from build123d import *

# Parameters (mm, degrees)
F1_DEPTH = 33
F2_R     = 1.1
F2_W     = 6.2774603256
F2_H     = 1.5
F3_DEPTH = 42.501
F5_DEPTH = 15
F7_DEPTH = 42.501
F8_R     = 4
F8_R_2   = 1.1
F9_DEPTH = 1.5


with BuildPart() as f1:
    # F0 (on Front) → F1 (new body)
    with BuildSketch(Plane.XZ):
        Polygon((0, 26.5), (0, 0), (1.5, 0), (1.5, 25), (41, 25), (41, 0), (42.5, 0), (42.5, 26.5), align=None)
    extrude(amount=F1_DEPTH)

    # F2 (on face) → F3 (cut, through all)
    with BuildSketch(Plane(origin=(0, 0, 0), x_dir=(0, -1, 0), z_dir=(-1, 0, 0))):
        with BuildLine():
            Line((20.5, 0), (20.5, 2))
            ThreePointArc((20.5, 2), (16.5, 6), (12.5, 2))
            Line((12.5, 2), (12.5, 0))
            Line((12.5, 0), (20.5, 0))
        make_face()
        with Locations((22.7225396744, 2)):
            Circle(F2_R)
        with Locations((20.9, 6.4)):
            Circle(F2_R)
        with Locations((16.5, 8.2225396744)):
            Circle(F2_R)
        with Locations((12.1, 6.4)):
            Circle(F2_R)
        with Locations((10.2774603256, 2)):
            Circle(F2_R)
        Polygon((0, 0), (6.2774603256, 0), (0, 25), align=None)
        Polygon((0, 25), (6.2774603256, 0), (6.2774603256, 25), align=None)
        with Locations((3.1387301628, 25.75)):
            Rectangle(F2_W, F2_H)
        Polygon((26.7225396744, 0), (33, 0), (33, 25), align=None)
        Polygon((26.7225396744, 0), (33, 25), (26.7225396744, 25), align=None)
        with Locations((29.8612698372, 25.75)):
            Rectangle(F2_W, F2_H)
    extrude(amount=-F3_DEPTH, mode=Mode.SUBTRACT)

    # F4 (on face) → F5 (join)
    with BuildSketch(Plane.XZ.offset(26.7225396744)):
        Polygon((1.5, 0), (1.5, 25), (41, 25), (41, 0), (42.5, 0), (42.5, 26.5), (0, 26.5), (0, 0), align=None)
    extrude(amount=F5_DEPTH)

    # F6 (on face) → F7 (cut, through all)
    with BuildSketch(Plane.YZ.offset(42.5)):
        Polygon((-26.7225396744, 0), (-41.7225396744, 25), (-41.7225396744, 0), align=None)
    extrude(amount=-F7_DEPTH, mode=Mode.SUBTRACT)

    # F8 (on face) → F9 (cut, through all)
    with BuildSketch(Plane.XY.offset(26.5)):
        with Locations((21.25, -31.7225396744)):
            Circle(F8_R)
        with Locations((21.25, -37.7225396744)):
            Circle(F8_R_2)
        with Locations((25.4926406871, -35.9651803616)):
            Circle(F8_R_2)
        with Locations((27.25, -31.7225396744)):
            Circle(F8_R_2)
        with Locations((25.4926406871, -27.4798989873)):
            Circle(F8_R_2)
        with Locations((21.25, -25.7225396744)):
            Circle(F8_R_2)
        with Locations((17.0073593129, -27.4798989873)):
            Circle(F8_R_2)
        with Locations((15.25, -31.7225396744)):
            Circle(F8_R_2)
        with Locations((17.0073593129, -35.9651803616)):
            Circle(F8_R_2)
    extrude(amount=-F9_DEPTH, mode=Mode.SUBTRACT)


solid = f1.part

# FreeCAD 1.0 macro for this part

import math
import FreeCAD as App
import Part
import Sketcher
from FreeCAD import Vector


def add_polygon(sketch, points):
    """Adds a closed chain of lines whose ends are joined by coincident constraints."""
    first, n = sketch.GeometryCount, len(points)
    for a, b in zip(points, points[1:] + points[:1]):
        sketch.addGeometry(Part.LineSegment(App.Vector(*a, 0), App.Vector(*b, 0)), False)
    for i in range(n):
        sketch.addConstraint(Sketcher.Constraint("Coincident", first + i, 2, first + (i + 1) % n, 1))

doc = App.newDocument("Part")
body = doc.addObject("PartDesign::Body", "Body")

# Sketch on XZ plane
sketch1 = body.newObject("Sketcher::SketchObject", "Sketch")
sketch1.AttachmentSupport = (doc.getObject("XZ_Plane"), [""])
sketch1.MapMode = "FlatFace"
add_polygon(sketch1, [(0, 26.5), (0, 0), (1.5, 0), (1.5, 25), (41, 25), (41, 0), (42.5, 0), (42.5, 26.5)])  # lines 0-7
sketch1.addConstraint([
    Sketcher.Constraint("Vertical", 0),
    Sketcher.Constraint("Horizontal", 1),
    Sketcher.Constraint("Vertical", 2),
    Sketcher.Constraint("Horizontal", 3),
    Sketcher.Constraint("Vertical", 4),
    Sketcher.Constraint("Horizontal", 5),
    Sketcher.Constraint("Vertical", 6),
    Sketcher.Constraint("Horizontal", 7),
    Sketcher.Constraint("Coincident", 0, 2, -1, 1),
    Sketcher.Constraint("PointOnObject", 4, 2, -1),
    Sketcher.Constraint("Equal", 1, 5),
    Sketcher.Constraint("DistanceY", 2, 1, 2, 2, 25.0),
    Sketcher.Constraint("DistanceX", 1, 1, 1, 2, 1.5),
    Sketcher.Constraint("DistanceX", 3, 1, 3, 2, 39.5),
    Sketcher.Constraint("DistanceY", 0, 2, 0, 1, 26.5),
])
pad1 = body.newObject("PartDesign::Pad", "Pad")
pad1.Profile = sketch1
pad1.Length = 33

# Sketch on YZ plane
sketch2 = body.newObject("Sketcher::SketchObject", "Sketch001")
sketch2.AttachmentSupport = (doc.getObject("YZ_Plane"), [""])
sketch2.MapMode = "FlatFace"
sketch2.addGeometry(Part.LineSegment(Vector(-20.5, 0, 0), Vector(-20.5, 2, 0)), False)  # 0
sketch2.addGeometry(Part.ArcOfCircle(Part.Circle(Vector(-16.5, 2, 0), Vector(0, 0, 1), 4), math.radians(0), math.radians(180)), False)  # 1
sketch2.addGeometry(Part.LineSegment(Vector(-12.5, 2, 0), Vector(-12.5, 0, 0)), False)  # 2
sketch2.addGeometry(Part.LineSegment(Vector(-12.5, 0, 0), Vector(-20.5, 0, 0)), False)  # 3
sketch2.addGeometry(Part.Circle(Vector(-22.7, 2, 0), Vector(0, 0, 1), 1.1), False)  # 4
sketch2.addGeometry(Part.Circle(Vector(-20.9, 6.4, 0), Vector(0, 0, 1), 1.1), False)  # 5
sketch2.addGeometry(Part.Circle(Vector(-16.5, 8.2, 0), Vector(0, 0, 1), 1.1), False)  # 6
sketch2.addGeometry(Part.Circle(Vector(-12.1, 6.4, 0), Vector(0, 0, 1), 1.1), False)  # 7
sketch2.addGeometry(Part.Circle(Vector(-10.3, 2, 0), Vector(0, 0, 1), 1.1), False)  # 8
add_polygon(sketch2, [(0, 0), (-6.3, 0), (-6.3, 26.5), (0, 26.5)])  # lines 9-12
add_polygon(sketch2, [(-26.7, 0), (-33, 0), (-33, 26.5), (-26.7, 26.5)])  # lines 13-16
sketch2.addConstraint([
    Sketcher.Constraint("Tangent", 0, 2, 1, 2),
    Sketcher.Constraint("Tangent", 1, 1, 2, 1),
    Sketcher.Constraint("Coincident", 2, 2, 3, 1),
    Sketcher.Constraint("Coincident", 3, 2, 0, 1),
    Sketcher.Constraint("Vertical", 0),
    Sketcher.Constraint("Vertical", 2),
    Sketcher.Constraint("Horizontal", 3),
    Sketcher.Constraint("Horizontal", 9),
    Sketcher.Constraint("Vertical", 10),
    Sketcher.Constraint("Horizontal", 11),
    Sketcher.Constraint("Vertical", 12),
    Sketcher.Constraint("Horizontal", 13),
    Sketcher.Constraint("Vertical", 14),
    Sketcher.Constraint("Horizontal", 15),
    Sketcher.Constraint("Vertical", 16),
    Sketcher.Constraint("Coincident", 12, 2, -1, 1),
    Sketcher.Constraint("Equal", 4, 5),
    Sketcher.Constraint("Equal", 5, 6),
    Sketcher.Constraint("Equal", 6, 7),
    Sketcher.Constraint("Equal", 7, 8),
    Sketcher.Constraint("PointOnObject", 2, 2, -1),
    Sketcher.Constraint("PointOnObject", 13, 2, -1),
    Sketcher.Constraint("Horizontal", 1, 3, 4, 3),
    Sketcher.Constraint("Horizontal", 5, 3, 7, 3),
    Sketcher.Constraint("Horizontal", 4, 3, 8, 3),
    Sketcher.Constraint("Horizontal", 11, 2, 14, 2),
    Sketcher.Constraint("Vertical", 1, 3, 6, 3),
    Sketcher.Constraint("Equal", 11, 13),
    Sketcher.Constraint("Radius", 1, 4.0),
    Sketcher.Constraint("Diameter", 4, 2.2),
    Sketcher.Constraint("DistanceY", 0, 1, 0, 2, 2.0),
    Sketcher.Constraint("DistanceY", 10, 1, 10, 2, 26.5),
    Sketcher.Constraint("DistanceX", 13, 2, -1, 1, 33.0),
    Sketcher.Constraint("DistanceX", 8, 3, 9, 2, 4.0),
    Sketcher.Constraint("DistanceX", 15, 2, 4, 3, 4.0),
    Sketcher.Constraint("DistanceX", 1, 3, -1, 1, 16.5),
    Sketcher.Constraint("DistanceX", 5, 3, -1, 1, 20.9),
    Sketcher.Constraint("DistanceY", -1, 1, 5, 3, 6.4),
    Sketcher.Constraint("DistanceX", 7, 3, -1, 1, 12.1),
    Sketcher.Constraint("DistanceX", 9, 2, 9, 1, 6.27746),
    Sketcher.Constraint("DistanceY", -1, 1, 6, 3, 8.22254),
])
pocket1 = body.newObject("PartDesign::Pocket", "Pocket")
pocket1.Profile = sketch2
pocket1.Type = "ThroughAll"
pocket1.Reversed = True

# Sketch on XZ plane
sketch3 = body.newObject("Sketcher::SketchObject", "Sketch002")
sketch3.AttachmentSupport = (doc.getObject("XZ_Plane"), [""])
sketch3.MapMode = "FlatFace"
sketch3.AttachmentOffset = App.Placement(Vector(0, 0, 26.72254), App.Rotation())
add_polygon(sketch3, [(1.5, 0), (1.5, 25), (41, 25), (41, 0), (42.5, 0), (42.5, 26.5), (0, 26.5), (0, 0)])  # lines 0-7
sketch3.addConstraint([
    Sketcher.Constraint("Vertical", 0),
    Sketcher.Constraint("Horizontal", 1),
    Sketcher.Constraint("Vertical", 2),
    Sketcher.Constraint("Horizontal", 3),
    Sketcher.Constraint("Vertical", 4),
    Sketcher.Constraint("Horizontal", 5),
    Sketcher.Constraint("Vertical", 6),
    Sketcher.Constraint("Horizontal", 7),
    Sketcher.Constraint("Coincident", 6, 2, -1, 1),
    Sketcher.Constraint("PointOnObject", 2, 2, -1),
    Sketcher.Constraint("Equal", 3, 7),
    Sketcher.Constraint("DistanceY", 0, 1, 0, 2, 25.0),
    Sketcher.Constraint("DistanceX", 1, 1, 1, 2, 39.5),
    Sketcher.Constraint("DistanceX", 3, 1, 3, 2, 1.5),
    Sketcher.Constraint("DistanceY", 4, 1, 4, 2, 26.5),
])
pad2 = body.newObject("PartDesign::Pad", "Pad001")
pad2.Profile = sketch3
pad2.Length = 15

# Sketch on YZ plane
sketch4 = body.newObject("Sketcher::SketchObject", "Sketch003")
sketch4.AttachmentSupport = (doc.getObject("YZ_Plane"), [""])
sketch4.MapMode = "FlatFace"
sketch4.AttachmentOffset = App.Placement(Vector(0, 0, 42.5), App.Rotation())
add_polygon(sketch4, [(-27, 0), (-42, 25), (-42, 0)])  # lines 0-2
sketch4.addConstraint([
    Sketcher.Constraint("Vertical", 1),
    Sketcher.Constraint("Horizontal", 2),
    Sketcher.Constraint("PointOnObject", 1, 2, -1),
    Sketcher.Constraint("DistanceX", 2, 1, 2, 2, 15.0),
    Sketcher.Constraint("DistanceY", 1, 2, 1, 1, 25.0),
    Sketcher.Constraint("DistanceX", 0, 2, -1, 1, 41.72254),
])
pocket2 = body.newObject("PartDesign::Pocket", "Pocket001")
pocket2.Profile = sketch4
pocket2.Type = "ThroughAll"

# Sketch on XY plane
sketch5 = body.newObject("Sketcher::SketchObject", "Sketch004")
sketch5.AttachmentSupport = (doc.getObject("XY_Plane"), [""])
sketch5.MapMode = "FlatFace"
sketch5.AttachmentOffset = App.Placement(Vector(0, 0, 26.5), App.Rotation())
sketch5.addGeometry([
    Part.Circle(Vector(21.2, -31.7, 0), Vector(0, 0, 1), 4),  # 0
    Part.Circle(Vector(21.2, -37.7, 0), Vector(0, 0, 1), 1.1),  # 1
    Part.Circle(Vector(25.5, -36, 0), Vector(0, 0, 1), 1.1),  # 2
    Part.Circle(Vector(27.2, -31.7, 0), Vector(0, 0, 1), 1.1),  # 3
    Part.Circle(Vector(25.5, -27.5, 0), Vector(0, 0, 1), 1.1),  # 4
    Part.Circle(Vector(21.2, -25.7, 0), Vector(0, 0, 1), 1.1),  # 5
    Part.Circle(Vector(17, -27.5, 0), Vector(0, 0, 1), 1.1),  # 6
    Part.Circle(Vector(15.2, -31.7, 0), Vector(0, 0, 1), 1.1),  # 7
    Part.Circle(Vector(17, -36, 0), Vector(0, 0, 1), 1.1),  # 8
], False)
sketch5.addConstraint([
    Sketcher.Constraint("Equal", 1, 2),
    Sketcher.Constraint("Equal", 2, 3),
    Sketcher.Constraint("Equal", 3, 4),
    Sketcher.Constraint("Equal", 4, 5),
    Sketcher.Constraint("Equal", 5, 6),
    Sketcher.Constraint("Equal", 6, 7),
    Sketcher.Constraint("Equal", 7, 8),
    Sketcher.Constraint("Horizontal", 0, 3, 3, 3),
    Sketcher.Constraint("Horizontal", 4, 3, 6, 3),
    Sketcher.Constraint("Horizontal", 3, 3, 7, 3),
    Sketcher.Constraint("Horizontal", 2, 3, 8, 3),
    Sketcher.Constraint("Vertical", 0, 3, 1, 3),
    Sketcher.Constraint("Vertical", 2, 3, 4, 3),
    Sketcher.Constraint("Vertical", 1, 3, 5, 3),
    Sketcher.Constraint("Vertical", 6, 3, 8, 3),
    Sketcher.Constraint("Diameter", 0, 8.0),
    Sketcher.Constraint("Diameter", 1, 2.2),
    Sketcher.Constraint("DistanceY", 1, 3, 0, 3, 6.0),
    Sketcher.Constraint("DistanceX", 0, 3, 3, 3, 6.0),
    Sketcher.Constraint("DistanceY", 0, 3, 5, 3, 6.0),
    Sketcher.Constraint("DistanceX", 7, 3, 0, 3, 6.0),
    Sketcher.Constraint("DistanceX", -1, 1, 0, 3, 21.25),
    Sketcher.Constraint("DistanceY", 4, 3, -1, 1, 27.479899),
    Sketcher.Constraint("DistanceY", 0, 3, -1, 1, 31.72254),
    Sketcher.Constraint("DistanceX", -1, 1, 2, 3, 25.492641),
    Sketcher.Constraint("DistanceY", 2, 3, -1, 1, 35.96518),
    Sketcher.Constraint("DistanceX", -1, 1, 6, 3, 17.007359),
])
pocket3 = body.newObject("PartDesign::Pocket", "Pocket002")
pocket3.Profile = sketch5
pocket3.Type = "ThroughAll"

doc.recompute()
